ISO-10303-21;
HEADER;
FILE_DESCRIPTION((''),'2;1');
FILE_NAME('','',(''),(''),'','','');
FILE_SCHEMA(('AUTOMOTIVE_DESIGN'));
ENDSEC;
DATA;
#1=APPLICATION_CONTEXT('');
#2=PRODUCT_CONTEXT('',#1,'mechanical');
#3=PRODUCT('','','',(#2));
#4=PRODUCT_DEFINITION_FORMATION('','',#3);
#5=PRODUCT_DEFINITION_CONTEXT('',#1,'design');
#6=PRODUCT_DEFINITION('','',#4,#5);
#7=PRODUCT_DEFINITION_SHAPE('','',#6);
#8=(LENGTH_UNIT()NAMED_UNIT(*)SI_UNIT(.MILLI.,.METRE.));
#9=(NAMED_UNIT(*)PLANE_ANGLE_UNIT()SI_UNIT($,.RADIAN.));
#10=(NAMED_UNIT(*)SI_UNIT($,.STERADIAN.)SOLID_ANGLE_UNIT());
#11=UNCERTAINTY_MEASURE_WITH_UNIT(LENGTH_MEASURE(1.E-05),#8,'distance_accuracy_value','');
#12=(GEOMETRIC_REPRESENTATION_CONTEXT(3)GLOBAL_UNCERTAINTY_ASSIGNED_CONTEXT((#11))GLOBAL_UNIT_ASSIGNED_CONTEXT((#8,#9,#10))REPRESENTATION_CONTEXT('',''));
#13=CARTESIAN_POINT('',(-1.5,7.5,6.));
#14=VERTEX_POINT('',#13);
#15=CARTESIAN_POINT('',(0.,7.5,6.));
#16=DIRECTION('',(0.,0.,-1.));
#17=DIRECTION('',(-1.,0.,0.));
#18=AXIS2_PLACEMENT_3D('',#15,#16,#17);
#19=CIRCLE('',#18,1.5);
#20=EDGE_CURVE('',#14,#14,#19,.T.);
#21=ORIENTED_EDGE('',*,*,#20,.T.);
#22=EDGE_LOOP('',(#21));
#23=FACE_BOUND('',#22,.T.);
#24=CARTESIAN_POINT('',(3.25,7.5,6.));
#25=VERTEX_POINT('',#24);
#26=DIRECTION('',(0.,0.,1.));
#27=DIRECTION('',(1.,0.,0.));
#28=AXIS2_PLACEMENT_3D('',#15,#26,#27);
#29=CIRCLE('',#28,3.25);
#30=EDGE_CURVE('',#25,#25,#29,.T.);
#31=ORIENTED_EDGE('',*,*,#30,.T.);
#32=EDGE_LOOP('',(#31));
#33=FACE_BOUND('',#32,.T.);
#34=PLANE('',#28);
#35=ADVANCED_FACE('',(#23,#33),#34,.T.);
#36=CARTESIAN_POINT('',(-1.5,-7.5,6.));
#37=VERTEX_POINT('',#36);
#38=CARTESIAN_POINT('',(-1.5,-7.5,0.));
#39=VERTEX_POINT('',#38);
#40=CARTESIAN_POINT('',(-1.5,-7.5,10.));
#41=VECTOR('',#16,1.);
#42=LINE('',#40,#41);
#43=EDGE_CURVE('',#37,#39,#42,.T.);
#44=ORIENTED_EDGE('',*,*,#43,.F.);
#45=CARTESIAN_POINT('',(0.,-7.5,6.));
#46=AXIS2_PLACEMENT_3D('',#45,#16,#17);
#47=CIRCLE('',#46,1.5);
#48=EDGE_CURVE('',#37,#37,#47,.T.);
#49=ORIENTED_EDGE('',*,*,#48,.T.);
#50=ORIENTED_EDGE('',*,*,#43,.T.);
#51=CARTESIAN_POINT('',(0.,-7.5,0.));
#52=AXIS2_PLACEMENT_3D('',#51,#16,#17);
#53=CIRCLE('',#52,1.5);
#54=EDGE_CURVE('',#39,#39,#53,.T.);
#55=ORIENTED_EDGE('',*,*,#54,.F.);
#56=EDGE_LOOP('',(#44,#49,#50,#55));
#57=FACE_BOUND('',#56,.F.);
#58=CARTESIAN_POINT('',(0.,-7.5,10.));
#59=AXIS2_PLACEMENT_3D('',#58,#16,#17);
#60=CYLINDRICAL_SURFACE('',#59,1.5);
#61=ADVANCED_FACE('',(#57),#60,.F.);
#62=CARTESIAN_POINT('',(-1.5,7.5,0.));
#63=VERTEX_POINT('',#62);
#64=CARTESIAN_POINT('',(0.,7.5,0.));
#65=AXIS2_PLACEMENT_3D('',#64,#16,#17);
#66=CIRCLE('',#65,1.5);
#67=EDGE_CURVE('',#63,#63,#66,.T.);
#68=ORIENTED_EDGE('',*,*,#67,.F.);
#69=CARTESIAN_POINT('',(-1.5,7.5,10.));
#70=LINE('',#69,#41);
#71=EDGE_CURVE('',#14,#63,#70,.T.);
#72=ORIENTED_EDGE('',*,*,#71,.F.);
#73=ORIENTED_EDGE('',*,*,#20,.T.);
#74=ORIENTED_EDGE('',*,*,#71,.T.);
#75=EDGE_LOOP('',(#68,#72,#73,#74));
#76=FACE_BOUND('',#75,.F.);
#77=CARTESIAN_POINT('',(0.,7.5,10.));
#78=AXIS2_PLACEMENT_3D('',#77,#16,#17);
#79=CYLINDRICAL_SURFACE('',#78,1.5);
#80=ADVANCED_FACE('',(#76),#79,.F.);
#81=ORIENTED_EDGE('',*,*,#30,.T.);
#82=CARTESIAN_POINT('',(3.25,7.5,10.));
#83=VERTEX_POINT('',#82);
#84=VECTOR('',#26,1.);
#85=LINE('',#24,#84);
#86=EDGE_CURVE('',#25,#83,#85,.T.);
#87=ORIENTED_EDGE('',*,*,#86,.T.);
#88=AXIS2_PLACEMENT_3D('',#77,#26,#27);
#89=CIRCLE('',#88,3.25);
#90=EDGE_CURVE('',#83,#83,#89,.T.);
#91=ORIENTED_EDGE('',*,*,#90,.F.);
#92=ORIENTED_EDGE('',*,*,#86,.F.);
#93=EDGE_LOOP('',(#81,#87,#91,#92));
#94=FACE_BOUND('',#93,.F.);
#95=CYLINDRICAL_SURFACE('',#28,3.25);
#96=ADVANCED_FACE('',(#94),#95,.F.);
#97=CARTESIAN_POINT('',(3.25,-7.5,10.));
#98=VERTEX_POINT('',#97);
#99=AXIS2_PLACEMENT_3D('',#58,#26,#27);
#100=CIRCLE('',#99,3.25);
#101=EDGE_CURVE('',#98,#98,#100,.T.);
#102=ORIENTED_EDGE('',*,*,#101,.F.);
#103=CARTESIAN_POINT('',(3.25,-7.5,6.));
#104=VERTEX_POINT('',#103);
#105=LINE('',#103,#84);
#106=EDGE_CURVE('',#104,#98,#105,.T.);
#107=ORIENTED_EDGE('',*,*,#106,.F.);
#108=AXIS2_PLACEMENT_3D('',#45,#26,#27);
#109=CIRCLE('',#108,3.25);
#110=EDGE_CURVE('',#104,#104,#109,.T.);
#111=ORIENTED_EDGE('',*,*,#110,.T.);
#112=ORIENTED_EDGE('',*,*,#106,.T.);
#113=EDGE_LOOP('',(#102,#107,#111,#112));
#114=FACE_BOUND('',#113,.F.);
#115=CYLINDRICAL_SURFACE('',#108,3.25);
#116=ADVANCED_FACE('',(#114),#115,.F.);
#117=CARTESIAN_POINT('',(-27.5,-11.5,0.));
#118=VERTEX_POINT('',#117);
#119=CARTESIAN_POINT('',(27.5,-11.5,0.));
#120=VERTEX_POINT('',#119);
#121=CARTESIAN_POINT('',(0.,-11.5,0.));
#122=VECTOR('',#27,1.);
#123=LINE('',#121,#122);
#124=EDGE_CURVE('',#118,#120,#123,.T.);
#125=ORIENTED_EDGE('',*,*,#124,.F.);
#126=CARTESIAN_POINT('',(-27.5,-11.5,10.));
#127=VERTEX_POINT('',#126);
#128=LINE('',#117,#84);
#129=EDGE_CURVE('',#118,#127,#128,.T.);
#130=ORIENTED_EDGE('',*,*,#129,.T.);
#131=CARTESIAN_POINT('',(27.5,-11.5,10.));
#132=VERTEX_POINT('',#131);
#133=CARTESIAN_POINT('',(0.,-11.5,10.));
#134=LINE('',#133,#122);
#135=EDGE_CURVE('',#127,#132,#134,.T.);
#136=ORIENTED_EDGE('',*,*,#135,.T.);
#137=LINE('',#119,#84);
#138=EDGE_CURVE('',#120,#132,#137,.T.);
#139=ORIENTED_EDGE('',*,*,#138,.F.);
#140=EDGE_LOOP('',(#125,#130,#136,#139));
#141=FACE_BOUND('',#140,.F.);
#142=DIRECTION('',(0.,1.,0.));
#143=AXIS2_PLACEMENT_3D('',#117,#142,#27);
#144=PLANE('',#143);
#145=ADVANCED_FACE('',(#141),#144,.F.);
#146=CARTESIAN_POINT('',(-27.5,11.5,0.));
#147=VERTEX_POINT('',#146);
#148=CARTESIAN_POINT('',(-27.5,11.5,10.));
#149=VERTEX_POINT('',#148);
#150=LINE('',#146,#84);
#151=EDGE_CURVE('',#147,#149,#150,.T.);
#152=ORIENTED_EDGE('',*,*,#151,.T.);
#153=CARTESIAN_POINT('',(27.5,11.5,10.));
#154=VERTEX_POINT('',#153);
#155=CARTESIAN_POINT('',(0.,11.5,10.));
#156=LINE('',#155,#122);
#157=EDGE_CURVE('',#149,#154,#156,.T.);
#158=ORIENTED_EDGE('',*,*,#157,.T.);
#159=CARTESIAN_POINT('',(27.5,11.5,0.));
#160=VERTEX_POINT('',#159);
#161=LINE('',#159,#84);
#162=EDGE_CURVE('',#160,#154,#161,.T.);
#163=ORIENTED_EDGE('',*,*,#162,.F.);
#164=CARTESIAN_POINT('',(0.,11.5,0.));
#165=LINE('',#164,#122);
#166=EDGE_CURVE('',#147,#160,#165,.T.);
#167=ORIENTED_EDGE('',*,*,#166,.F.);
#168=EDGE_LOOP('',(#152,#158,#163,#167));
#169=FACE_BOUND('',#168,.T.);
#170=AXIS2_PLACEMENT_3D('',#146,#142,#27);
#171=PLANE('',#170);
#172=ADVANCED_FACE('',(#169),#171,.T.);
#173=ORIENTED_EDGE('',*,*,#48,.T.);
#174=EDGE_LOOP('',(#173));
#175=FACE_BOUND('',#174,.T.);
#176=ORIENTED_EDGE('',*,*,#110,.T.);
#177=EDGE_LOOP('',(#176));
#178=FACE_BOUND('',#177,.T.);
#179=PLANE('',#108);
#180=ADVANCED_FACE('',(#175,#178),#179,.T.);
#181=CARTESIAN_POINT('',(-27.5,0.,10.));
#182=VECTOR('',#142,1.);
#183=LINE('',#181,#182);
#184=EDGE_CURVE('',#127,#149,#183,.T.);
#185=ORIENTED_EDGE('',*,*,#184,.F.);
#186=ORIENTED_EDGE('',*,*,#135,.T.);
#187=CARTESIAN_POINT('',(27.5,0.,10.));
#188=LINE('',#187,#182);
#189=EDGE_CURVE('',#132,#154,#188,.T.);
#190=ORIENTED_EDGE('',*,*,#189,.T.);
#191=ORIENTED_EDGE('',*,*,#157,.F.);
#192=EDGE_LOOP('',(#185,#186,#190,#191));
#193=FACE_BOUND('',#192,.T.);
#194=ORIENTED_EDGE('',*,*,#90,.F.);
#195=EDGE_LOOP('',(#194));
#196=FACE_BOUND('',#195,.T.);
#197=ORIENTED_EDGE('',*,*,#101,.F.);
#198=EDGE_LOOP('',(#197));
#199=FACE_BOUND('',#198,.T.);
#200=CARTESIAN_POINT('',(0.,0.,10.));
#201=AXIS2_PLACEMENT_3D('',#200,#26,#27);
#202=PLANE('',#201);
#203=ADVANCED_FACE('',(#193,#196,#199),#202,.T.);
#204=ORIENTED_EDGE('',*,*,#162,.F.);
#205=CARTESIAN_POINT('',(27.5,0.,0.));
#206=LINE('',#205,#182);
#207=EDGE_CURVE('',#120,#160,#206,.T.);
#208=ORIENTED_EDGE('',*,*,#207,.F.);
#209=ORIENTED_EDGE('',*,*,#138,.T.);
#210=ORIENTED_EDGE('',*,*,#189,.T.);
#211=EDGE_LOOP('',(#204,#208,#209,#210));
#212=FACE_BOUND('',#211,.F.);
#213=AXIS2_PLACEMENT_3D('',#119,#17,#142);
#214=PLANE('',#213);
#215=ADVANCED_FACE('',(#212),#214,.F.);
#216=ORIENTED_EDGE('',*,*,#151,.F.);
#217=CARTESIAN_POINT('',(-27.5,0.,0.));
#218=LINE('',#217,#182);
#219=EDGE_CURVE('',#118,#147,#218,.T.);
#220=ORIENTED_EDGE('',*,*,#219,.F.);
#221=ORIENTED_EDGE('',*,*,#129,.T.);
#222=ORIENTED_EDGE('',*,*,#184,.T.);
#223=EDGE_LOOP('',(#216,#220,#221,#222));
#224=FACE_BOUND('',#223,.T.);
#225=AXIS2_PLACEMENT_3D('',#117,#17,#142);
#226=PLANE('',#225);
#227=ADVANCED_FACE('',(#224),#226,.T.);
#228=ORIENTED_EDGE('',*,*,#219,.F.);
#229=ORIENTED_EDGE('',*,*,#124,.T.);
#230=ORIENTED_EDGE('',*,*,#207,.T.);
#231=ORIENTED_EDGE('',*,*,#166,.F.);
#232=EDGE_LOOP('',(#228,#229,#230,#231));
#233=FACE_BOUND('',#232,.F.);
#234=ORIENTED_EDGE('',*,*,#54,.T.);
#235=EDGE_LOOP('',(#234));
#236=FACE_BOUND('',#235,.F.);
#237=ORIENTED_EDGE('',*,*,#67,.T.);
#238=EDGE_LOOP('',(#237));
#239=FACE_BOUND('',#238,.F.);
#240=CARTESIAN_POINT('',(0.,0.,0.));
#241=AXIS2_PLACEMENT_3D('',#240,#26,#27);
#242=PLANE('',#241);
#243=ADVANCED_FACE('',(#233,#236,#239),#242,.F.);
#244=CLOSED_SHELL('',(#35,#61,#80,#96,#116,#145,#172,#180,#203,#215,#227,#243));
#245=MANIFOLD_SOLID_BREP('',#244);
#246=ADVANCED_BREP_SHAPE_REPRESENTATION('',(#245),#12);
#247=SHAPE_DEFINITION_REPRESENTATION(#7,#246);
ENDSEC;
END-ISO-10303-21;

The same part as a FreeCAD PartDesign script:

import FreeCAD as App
import Part
import Sketcher

doc = App.newDocument("Part")
body = doc.addObject("PartDesign::Body", "Body")

sketch1 = body.newObject("Sketcher::SketchObject", "Sketch")
sketch1.AttachmentSupport = (doc.getObject("XY_Plane"), [""])
sketch1.MapMode = "FlatFace"
sketch1.addGeometry([
    Part.LineSegment(App.Vector(-27.5, 11.5, 0), App.Vector(-27.5, -11.5, 0)),
    Part.LineSegment(App.Vector(-27.5, -11.5, 0), App.Vector(27.5, -11.5, 0)),
    Part.LineSegment(App.Vector(27.5, -11.5, 0), App.Vector(27.5, 11.5, 0)),
    Part.LineSegment(App.Vector(27.5, 11.5, 0), App.Vector(-27.5, 11.5, 0)),
], False)
sketch1.addConstraint([
    Sketcher.Constraint("Coincident", 0, 2, 1, 1),
    Sketcher.Constraint("Coincident", 1, 2, 2, 1),
    Sketcher.Constraint("Coincident", 2, 2, 3, 1),
    Sketcher.Constraint("Coincident", 3, 2, 0, 1),
    Sketcher.Constraint("Vertical", 0),
    Sketcher.Constraint("Horizontal", 1),
    Sketcher.Constraint("Vertical", 2),
    Sketcher.Constraint("Horizontal", 3),
    Sketcher.Constraint("Symmetric", 0, 2, 2, 2, -1, 1),
    Sketcher.Constraint("DistanceX", 1, 1, 1, 2, 55.0),
    Sketcher.Constraint("DistanceY", 0, 2, 0, 1, 23.0),
])
pad1 = body.newObject("PartDesign::Pad", "Pad")
pad1.Profile = sketch1
pad1.Length = 10

sketch2 = body.newObject("Sketcher::SketchObject", "Sketch001")
sketch2.AttachmentSupport = (doc.getObject("XY_Plane"), [""])
sketch2.MapMode = "FlatFace"
sketch2.AttachmentOffset = App.Placement(App.Vector(0, 0, 10), App.Rotation())
sketch2.addGeometry([
    Part.Circle(App.Vector(0, 7.5, 0), App.Vector(0, 0, 1), 1.5),
    Part.Circle(App.Vector(0, -7.5, 0), App.Vector(0, 0, 1), 1.5),
], False)
sketch2.addConstraint([
    Sketcher.Constraint("Equal", 0, 1),
    Sketcher.Constraint("Symmetric", 0, 3, 1, 3, -1, 1),
    Sketcher.Constraint("PointOnObject", 0, 3, -2),
    Sketcher.Constraint("Diameter", 0, 3.0),
    Sketcher.Constraint("DistanceY", 1, 3, 0, 3, 15.0),
])
doc.recompute()
hole = body.newObject("PartDesign::Hole", "Hole")
hole.Profile = sketch2
hole.ThreadType = "None"
hole.Diameter = 3
hole.DepthType = "ThroughAll"
hole.HoleCutType = "Counterbore"
hole.HoleCutDiameter = 6.5
hole.HoleCutDepth = 4

doc.recompute()
